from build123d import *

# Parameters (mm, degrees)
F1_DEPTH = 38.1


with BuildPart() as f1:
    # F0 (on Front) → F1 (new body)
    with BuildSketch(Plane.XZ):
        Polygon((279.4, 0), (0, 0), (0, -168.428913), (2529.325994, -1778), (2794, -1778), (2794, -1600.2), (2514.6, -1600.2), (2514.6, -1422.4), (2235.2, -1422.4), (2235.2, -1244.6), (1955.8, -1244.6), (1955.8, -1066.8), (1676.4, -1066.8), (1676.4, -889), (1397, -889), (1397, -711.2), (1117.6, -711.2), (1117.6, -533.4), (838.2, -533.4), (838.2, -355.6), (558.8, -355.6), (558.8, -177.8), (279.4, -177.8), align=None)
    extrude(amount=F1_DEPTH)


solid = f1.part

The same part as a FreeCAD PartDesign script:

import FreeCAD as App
import Part
import Sketcher

V = App.Vector
Q = App.Units.Quantity


def add_polygon(sketch, points):
    """Adds a closed chain of lines whose ends are joined by coincident constraints."""
    first, n = sketch.GeometryCount, len(points)
    for a, b in zip(points, points[1:] + points[:1]):
        sketch.addGeometry(Part.LineSegment(App.Vector(*a, 0), App.Vector(*b, 0)), False)
    for i in range(n):
        sketch.addConstraint(Sketcher.Constraint("Coincident", first + i, 2, first + (i + 1) % n, 1))

doc = App.newDocument("Part")
body = doc.addObject("PartDesign::Body", "Body")

sketch1 = body.newObject("Sketcher::SketchObject", "Sketch")
sketch1.AttachmentSupport = (doc.getObject("XZ_Plane"), [""])
sketch1.MapMode = "FlatFace"
add_polygon(sketch1, [(279, 0), (0, 0), (0, -168), (2529, -1778), (2794, -1778), (2794, -1600), (2515, -1600), (2515, -1422), (2235, -1422), (2235, -1245), (1956, -1245), (1956, -1067), (1676, -1067), (1676, -889), (1397, -889), (1397, -711), (1118, -711), (1118, -533), (838, -533), (838, -356), (559, -356), (559, -178), (279, -178)])
sketch1.addConstraint([
    Sketcher.Constraint("Horizontal", 0),
    Sketcher.Constraint("Vertical", 1),
    Sketcher.Constraint("Horizontal", 3),
    Sketcher.Constraint("Vertical", 4),
    Sketcher.Constraint("Horizontal", 5),
    Sketcher.Constraint("Vertical", 6),
    Sketcher.Constraint("Horizontal", 7),
    Sketcher.Constraint("Vertical", 8),
    Sketcher.Constraint("Horizontal", 9),
    Sketcher.Constraint("Vertical", 10),
    Sketcher.Constraint("Horizontal", 11),
    Sketcher.Constraint("Vertical", 12),
    Sketcher.Constraint("Horizontal", 13),
    Sketcher.Constraint("Vertical", 14),
    Sketcher.Constraint("Horizontal", 15),
    Sketcher.Constraint("Vertical", 16),
    Sketcher.Constraint("Horizontal", 17),
    Sketcher.Constraint("Vertical", 18),
    Sketcher.Constraint("Horizontal", 19),
    Sketcher.Constraint("Vertical", 20),
    Sketcher.Constraint("Horizontal", 21),
    Sketcher.Constraint("Vertical", 22),
    Sketcher.Constraint("Coincident", 0, 2, -1, 1),
    Sketcher.Constraint("Equal", 0, 5),
    Sketcher.Constraint("Equal", 5, 7),
    Sketcher.Constraint("Equal", 7, 9),
    Sketcher.Constraint("Equal", 9, 11),
    Sketcher.Constraint("Equal", 11, 13),
    Sketcher.Constraint("Equal", 13, 15),
    Sketcher.Constraint("Equal", 15, 17),
    Sketcher.Constraint("Equal", 17, 19),
    Sketcher.Constraint("Equal", 19, 21),
    Sketcher.Constraint("Equal", 4, 6),
    Sketcher.Constraint("Equal", 6, 8),
    Sketcher.Constraint("Equal", 8, 10),
    Sketcher.Constraint("Equal", 10, 12),
    Sketcher.Constraint("Equal", 12, 14),
    Sketcher.Constraint("Equal", 14, 16),
    Sketcher.Constraint("Equal", 16, 18),
    Sketcher.Constraint("Equal", 18, 20),
    Sketcher.Constraint("Equal", 20, 22),
    Sketcher.Constraint("DistanceX", 0, 2, 0, 1, Q("11 in")),
    Sketcher.Constraint("DistanceY", 4, 1, 4, 2, Q("7 in")),
    Sketcher.Constraint("Distance", 2, 2998.034201),
    Sketcher.Constraint("DistanceX", 3, 1, 3, 2, 264.674006),
])
pad1 = body.newObject("PartDesign::Pad", "Pad")
pad1.Profile = sketch1
pad1.Length = Q("1.5 in")

doc.recompute()
